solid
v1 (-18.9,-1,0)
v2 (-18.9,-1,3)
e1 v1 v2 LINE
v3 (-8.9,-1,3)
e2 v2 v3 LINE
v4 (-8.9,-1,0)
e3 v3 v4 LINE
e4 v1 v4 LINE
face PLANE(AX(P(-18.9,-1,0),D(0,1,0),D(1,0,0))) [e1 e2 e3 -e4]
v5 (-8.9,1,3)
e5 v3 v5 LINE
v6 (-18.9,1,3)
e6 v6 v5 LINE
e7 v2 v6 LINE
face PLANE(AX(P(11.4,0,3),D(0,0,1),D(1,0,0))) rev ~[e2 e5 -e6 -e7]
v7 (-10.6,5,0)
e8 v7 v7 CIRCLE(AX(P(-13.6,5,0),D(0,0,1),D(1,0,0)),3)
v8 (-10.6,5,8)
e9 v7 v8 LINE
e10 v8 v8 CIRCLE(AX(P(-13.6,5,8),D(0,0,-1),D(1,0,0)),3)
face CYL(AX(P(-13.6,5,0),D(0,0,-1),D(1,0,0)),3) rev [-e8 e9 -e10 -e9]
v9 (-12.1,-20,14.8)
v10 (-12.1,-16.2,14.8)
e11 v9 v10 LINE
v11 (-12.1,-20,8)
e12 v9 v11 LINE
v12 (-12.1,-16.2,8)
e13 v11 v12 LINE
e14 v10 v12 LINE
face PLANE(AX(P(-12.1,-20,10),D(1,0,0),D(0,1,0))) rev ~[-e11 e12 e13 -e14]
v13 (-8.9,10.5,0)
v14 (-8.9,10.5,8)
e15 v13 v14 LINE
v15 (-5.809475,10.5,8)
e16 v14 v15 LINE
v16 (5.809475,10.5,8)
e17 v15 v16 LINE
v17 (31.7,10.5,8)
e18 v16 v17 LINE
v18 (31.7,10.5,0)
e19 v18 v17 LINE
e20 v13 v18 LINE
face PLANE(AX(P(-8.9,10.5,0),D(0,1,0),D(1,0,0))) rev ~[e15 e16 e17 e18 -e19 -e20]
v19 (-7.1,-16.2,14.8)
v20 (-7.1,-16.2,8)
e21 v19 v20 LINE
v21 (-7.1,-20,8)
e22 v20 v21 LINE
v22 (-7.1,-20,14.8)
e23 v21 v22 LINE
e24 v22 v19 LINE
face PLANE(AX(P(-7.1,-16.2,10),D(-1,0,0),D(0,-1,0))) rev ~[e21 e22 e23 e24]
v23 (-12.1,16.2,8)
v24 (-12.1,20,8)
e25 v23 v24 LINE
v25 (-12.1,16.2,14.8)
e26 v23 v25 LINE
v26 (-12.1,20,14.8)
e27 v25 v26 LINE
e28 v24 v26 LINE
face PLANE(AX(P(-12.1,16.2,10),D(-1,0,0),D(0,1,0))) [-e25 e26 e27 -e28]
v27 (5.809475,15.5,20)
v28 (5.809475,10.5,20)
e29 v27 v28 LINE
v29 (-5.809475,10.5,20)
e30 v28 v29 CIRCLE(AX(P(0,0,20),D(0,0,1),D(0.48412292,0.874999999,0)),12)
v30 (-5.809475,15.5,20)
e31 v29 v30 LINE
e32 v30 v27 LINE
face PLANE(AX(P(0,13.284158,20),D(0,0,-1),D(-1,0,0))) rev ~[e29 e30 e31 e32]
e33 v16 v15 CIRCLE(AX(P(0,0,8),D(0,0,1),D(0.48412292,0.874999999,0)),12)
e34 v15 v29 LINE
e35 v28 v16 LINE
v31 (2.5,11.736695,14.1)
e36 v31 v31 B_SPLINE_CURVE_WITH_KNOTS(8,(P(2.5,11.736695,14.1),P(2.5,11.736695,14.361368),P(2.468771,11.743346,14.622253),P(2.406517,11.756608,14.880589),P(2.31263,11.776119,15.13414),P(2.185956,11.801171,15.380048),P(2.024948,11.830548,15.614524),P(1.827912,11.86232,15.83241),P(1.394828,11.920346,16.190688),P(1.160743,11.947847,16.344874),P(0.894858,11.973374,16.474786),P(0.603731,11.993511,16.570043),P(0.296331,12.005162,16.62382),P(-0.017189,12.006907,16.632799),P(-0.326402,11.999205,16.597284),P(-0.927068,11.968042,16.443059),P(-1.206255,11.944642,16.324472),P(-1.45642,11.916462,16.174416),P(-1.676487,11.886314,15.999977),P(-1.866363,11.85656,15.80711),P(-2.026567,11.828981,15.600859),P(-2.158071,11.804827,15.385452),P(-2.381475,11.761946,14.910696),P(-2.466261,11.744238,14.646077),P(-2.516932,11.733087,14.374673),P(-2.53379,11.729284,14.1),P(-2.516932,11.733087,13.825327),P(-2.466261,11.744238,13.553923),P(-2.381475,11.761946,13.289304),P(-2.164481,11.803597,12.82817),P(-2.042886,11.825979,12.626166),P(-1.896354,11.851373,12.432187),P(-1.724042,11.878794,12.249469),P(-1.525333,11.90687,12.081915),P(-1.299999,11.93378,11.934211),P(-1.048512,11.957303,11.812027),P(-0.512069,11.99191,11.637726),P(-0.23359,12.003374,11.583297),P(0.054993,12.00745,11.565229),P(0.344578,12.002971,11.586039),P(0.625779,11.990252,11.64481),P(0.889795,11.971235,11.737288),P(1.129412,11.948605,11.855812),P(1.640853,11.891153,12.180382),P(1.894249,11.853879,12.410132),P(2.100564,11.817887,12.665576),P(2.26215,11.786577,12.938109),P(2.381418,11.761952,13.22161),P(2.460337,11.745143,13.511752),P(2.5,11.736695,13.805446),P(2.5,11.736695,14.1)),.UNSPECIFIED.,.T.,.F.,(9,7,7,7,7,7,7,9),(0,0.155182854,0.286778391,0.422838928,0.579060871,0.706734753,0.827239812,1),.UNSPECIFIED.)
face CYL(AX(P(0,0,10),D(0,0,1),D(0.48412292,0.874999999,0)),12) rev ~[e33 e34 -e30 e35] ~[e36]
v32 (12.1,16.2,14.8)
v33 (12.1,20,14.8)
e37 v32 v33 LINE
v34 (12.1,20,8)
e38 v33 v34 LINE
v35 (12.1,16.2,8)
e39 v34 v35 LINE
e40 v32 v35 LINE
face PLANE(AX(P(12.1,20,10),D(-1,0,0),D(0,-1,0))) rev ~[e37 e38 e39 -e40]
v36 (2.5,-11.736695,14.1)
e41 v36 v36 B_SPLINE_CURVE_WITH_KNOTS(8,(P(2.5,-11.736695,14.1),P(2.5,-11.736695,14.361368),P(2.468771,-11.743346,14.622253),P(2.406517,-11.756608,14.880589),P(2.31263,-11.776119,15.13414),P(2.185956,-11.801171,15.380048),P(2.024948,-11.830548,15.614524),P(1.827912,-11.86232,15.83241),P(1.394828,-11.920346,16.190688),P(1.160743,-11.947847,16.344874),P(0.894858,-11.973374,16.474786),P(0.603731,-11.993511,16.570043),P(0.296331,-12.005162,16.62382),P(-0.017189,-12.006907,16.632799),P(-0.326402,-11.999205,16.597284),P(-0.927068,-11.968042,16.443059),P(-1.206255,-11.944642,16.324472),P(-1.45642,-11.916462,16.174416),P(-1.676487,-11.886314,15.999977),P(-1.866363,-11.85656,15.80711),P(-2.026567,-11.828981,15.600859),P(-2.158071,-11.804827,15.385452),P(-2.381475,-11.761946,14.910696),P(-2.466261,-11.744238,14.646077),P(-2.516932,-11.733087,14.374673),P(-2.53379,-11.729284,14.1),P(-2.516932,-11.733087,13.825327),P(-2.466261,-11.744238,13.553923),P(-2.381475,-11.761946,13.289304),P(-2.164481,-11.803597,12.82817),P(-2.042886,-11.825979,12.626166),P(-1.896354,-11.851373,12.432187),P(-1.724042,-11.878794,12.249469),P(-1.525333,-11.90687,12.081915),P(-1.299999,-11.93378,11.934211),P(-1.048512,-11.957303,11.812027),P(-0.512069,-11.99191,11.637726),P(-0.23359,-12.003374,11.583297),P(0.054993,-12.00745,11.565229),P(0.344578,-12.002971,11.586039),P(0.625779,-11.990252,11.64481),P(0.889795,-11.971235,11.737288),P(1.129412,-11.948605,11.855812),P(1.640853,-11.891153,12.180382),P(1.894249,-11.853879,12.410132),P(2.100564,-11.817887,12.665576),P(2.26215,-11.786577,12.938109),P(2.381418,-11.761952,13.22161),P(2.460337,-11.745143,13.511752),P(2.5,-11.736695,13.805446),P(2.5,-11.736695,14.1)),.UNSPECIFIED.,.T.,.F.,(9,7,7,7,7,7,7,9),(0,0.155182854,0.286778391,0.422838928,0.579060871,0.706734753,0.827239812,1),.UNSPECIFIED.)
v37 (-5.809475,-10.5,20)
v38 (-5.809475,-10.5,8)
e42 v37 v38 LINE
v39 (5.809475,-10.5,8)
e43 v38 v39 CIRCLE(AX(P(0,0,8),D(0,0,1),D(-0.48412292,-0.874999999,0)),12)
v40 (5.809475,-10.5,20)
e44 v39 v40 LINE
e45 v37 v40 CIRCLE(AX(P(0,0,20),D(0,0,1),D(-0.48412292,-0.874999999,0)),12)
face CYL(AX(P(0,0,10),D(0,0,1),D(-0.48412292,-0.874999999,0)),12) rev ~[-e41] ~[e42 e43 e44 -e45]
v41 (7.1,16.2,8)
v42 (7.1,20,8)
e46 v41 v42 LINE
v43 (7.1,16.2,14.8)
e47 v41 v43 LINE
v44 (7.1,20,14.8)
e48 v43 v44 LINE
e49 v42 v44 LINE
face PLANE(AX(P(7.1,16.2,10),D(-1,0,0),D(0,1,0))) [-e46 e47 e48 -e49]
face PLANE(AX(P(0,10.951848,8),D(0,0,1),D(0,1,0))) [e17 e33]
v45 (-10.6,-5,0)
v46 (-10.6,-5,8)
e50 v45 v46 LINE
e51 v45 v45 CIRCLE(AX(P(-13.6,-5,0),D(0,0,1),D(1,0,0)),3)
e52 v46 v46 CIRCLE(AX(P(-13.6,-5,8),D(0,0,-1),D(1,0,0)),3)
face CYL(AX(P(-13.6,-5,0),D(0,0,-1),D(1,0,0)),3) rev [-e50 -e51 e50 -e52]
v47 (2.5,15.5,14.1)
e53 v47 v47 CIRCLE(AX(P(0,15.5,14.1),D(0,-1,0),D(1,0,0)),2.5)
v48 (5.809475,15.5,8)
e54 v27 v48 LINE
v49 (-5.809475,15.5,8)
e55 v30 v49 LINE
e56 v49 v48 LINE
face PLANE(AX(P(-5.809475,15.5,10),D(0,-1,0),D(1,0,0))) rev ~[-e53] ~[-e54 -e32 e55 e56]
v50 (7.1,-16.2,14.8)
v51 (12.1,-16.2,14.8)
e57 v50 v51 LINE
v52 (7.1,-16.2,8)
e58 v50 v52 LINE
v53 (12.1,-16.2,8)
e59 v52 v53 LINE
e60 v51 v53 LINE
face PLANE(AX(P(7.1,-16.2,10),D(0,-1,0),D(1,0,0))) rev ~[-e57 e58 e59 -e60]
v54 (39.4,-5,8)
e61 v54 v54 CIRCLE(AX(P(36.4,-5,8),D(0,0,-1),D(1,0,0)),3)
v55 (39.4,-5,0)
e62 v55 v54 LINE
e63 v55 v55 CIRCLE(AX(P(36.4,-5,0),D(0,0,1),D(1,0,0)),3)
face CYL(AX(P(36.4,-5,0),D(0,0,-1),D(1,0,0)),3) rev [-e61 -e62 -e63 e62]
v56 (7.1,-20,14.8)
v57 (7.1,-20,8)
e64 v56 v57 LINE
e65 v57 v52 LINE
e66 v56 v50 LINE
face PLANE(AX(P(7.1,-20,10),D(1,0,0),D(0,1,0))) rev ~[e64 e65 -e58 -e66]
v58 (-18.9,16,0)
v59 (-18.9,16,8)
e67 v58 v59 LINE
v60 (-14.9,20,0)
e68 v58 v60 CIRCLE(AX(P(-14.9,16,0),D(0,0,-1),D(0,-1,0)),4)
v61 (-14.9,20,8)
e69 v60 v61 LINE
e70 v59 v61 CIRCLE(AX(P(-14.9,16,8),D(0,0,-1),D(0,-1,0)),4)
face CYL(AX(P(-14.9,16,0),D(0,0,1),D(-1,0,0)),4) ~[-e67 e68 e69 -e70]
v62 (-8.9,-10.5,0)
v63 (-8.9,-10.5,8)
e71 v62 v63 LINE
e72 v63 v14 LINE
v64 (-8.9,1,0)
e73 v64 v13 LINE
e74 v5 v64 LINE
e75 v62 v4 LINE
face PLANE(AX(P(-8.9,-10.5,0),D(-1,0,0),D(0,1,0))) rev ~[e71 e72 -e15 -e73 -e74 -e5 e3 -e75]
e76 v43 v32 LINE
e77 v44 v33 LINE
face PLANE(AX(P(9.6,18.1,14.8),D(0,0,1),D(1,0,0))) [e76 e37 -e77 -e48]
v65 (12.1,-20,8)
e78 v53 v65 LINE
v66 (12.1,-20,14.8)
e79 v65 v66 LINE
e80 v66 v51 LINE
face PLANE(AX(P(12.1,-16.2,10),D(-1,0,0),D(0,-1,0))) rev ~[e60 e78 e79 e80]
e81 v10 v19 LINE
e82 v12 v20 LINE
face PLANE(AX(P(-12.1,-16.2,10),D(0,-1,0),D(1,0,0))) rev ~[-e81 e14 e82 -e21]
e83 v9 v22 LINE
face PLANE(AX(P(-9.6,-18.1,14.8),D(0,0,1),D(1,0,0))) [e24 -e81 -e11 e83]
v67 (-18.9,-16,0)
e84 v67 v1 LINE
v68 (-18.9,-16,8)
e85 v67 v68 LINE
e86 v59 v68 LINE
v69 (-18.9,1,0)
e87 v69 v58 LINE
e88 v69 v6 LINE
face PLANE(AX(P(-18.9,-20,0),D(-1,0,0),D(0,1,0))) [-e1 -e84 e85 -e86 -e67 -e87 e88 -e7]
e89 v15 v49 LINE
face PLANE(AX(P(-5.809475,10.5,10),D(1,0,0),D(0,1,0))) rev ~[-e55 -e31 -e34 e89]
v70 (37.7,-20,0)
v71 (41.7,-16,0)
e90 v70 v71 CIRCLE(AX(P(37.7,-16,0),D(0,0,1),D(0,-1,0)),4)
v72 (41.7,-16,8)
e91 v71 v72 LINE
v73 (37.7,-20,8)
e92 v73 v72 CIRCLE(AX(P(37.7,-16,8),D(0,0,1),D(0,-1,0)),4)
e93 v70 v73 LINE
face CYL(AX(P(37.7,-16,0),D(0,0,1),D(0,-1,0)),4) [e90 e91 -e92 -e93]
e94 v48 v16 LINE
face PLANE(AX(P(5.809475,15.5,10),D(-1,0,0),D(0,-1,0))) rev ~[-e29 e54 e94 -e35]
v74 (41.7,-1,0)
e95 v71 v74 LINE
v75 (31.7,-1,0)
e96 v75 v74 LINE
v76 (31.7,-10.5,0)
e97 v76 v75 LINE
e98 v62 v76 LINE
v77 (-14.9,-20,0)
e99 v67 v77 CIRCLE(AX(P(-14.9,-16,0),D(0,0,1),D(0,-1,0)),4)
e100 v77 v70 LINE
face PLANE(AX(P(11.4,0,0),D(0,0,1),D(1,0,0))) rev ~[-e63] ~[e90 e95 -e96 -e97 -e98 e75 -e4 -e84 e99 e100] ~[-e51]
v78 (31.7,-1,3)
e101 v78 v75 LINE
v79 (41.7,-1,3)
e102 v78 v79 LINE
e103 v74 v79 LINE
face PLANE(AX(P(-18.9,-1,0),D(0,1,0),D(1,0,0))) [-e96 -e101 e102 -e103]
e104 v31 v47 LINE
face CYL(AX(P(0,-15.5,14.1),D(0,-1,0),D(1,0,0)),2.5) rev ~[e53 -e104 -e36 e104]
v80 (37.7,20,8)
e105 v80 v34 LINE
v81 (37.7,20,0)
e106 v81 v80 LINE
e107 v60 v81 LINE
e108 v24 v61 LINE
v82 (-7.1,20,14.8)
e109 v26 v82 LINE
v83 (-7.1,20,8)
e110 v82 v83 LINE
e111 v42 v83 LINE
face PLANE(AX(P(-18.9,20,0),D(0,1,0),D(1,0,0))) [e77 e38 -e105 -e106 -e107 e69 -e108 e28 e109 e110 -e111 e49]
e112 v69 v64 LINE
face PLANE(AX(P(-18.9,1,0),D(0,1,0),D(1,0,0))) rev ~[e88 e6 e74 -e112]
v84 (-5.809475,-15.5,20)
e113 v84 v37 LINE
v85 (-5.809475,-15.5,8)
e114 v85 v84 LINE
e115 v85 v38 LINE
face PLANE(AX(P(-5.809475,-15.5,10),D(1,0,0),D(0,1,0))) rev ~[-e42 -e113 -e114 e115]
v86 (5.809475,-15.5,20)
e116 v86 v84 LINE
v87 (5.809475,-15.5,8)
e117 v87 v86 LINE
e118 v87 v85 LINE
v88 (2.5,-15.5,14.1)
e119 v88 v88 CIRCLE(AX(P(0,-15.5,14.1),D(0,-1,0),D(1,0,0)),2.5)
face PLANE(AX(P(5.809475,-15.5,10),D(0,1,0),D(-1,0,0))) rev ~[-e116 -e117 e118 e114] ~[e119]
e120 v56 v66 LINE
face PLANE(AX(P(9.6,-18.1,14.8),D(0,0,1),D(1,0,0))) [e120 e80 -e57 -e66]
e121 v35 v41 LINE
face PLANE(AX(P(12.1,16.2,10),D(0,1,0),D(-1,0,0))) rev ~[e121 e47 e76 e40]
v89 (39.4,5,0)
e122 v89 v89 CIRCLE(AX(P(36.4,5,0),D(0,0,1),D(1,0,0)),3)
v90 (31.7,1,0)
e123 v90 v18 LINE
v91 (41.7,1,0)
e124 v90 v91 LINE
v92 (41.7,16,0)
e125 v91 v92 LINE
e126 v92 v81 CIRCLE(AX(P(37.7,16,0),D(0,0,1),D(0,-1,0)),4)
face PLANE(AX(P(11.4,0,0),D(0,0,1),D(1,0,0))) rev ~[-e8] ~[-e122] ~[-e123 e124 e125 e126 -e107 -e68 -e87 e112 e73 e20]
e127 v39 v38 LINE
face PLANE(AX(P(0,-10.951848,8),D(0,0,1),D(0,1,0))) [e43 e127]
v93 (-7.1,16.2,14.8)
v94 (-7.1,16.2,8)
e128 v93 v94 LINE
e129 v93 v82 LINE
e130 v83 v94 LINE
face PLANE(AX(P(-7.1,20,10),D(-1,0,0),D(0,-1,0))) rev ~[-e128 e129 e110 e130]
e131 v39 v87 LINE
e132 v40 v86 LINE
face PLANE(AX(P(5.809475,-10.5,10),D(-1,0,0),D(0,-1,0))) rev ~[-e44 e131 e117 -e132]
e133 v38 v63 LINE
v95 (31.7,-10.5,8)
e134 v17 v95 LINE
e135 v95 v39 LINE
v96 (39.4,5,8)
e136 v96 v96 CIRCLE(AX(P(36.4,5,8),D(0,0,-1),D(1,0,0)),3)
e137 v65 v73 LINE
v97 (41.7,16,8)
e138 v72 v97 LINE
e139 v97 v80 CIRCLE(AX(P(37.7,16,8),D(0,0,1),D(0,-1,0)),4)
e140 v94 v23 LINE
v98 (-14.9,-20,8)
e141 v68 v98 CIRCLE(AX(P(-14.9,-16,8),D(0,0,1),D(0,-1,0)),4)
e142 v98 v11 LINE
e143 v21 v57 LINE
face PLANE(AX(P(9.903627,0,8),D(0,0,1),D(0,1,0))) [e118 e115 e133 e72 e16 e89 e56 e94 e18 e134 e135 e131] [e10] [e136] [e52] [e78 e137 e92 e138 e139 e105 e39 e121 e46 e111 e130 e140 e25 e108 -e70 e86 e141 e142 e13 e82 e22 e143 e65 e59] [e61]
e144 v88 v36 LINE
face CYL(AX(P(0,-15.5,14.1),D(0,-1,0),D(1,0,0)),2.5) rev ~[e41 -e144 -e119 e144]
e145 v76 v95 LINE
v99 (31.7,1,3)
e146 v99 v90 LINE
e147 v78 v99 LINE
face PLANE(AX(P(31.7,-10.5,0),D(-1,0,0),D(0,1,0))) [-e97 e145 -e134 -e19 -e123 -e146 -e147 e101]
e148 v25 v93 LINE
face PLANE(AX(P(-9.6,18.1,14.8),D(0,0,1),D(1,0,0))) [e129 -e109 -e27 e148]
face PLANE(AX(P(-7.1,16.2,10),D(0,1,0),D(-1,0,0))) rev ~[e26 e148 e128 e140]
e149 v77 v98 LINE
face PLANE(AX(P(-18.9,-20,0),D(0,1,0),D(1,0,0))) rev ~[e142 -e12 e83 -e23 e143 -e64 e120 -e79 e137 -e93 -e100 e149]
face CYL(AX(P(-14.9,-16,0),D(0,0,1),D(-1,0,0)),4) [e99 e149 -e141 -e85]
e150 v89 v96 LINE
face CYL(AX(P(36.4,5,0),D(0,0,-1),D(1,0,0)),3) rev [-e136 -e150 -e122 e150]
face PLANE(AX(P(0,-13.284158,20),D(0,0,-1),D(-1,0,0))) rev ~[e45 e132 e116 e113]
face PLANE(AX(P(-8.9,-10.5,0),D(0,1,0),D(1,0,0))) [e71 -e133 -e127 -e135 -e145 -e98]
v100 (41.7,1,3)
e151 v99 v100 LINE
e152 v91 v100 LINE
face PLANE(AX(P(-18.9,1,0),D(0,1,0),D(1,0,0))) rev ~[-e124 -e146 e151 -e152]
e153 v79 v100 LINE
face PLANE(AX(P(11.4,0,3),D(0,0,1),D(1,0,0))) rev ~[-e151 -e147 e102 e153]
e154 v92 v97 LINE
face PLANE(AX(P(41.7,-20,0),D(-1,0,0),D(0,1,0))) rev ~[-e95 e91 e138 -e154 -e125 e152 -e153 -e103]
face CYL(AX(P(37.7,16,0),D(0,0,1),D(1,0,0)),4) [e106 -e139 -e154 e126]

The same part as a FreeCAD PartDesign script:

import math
import FreeCAD as App
import Part
import Sketcher
Q = App.Units.Quantity


def edges_at(feature, points):
    """Names of the edges that pass closest to the given points."""
    edges = feature.Shape.Edges
    near = lambda p: min(range(len(edges)), key=lambda i: edges[i].distToShape(Part.Vertex(*p))[0])
    return sorted({f"Edge{near(p) + 1}" for p in points})

doc = App.newDocument("Part")
body = doc.addObject("PartDesign::Body", "Body")

# Sketch on XY plane
sketch1 = doc.addObject("Sketcher::SketchObject", "Sketch")
body.addObject(sketch1)
sketch1.AttachmentSupport = (doc.XY_Plane, [""])
sketch1.MapMode = "FlatFace"
sketch1.addGeometry([
    Part.LineSegment(App.Vector(-18.9, 20, 0), App.Vector(-18.9, -20, 0)),  # 0
    Part.LineSegment(App.Vector(-18.9, -20, 0), App.Vector(41.7, -20, 0)),  # 1
    Part.LineSegment(App.Vector(41.7, -20, 0), App.Vector(41.7, 20, 0)),  # 2
    Part.LineSegment(App.Vector(41.7, 20, 0), App.Vector(-18.9, 20, 0)),  # 3
    Part.Circle(App.Vector(-13.6, -5, 0), App.Vector(0, 0, 1), 3),  # 4
    Part.Circle(App.Vector(36.4, -5, 0), App.Vector(0, 0, 1), 3),  # 5
    Part.Circle(App.Vector(-13.6, 5, 0), App.Vector(0, 0, 1), 3),  # 6
    Part.LineSegment(App.Vector(31.7, -10.5, 0), App.Vector(-8.9, -10.5, 0)),  # 7
    Part.LineSegment(App.Vector(-8.9, -10.5, 0), App.Vector(-8.9, 10.5, 0)),  # 8
    Part.LineSegment(App.Vector(-8.9, 10.5, 0), App.Vector(31.7, 10.5, 0)),  # 9
    Part.LineSegment(App.Vector(31.7, 10.5, 0), App.Vector(31.7, -10.5, 0)),  # 10
    Part.Circle(App.Vector(36.4, 5, 0), App.Vector(0, 0, 1), 3),  # 11
], False)
sketch1.addConstraint([
    Sketcher.Constraint("Coincident", 0, 2, 1, 1),
    Sketcher.Constraint("Coincident", 1, 2, 2, 1),
    Sketcher.Constraint("Coincident", 2, 2, 3, 1),
    Sketcher.Constraint("Coincident", 3, 2, 0, 1),
    Sketcher.Constraint("Coincident", 7, 2, 8, 1),
    Sketcher.Constraint("Coincident", 8, 2, 9, 1),
    Sketcher.Constraint("Coincident", 9, 2, 10, 1),
    Sketcher.Constraint("Coincident", 10, 2, 7, 1),
    Sketcher.Constraint("Vertical", 0),
    Sketcher.Constraint("Horizontal", 1),
    Sketcher.Constraint("Vertical", 2),
    Sketcher.Constraint("Horizontal", 3),
    Sketcher.Constraint("Horizontal", 7),
    Sketcher.Constraint("Vertical", 8),
    Sketcher.Constraint("Horizontal", 9),
    Sketcher.Constraint("Vertical", 10),
    Sketcher.Constraint("Equal", 4, 5),
    Sketcher.Constraint("Equal", 5, 6),
    Sketcher.Constraint("Equal", 6, 11),
    Sketcher.Constraint("Symmetric", 4, 3, 6, 3, -1),
    Sketcher.Constraint("Symmetric", 5, 3, 11, 3, -1),
    Sketcher.Constraint("Horizontal", 4, 3, 5, 3),
    Sketcher.Constraint("Diameter", 4, Q("6 mm")),
    Sketcher.Constraint("DistanceY", 0, 2, 0, 1, Q("40 mm")),
    Sketcher.Constraint("DistanceY", 8, 1, 8, 2, Q("21 mm")),
    Sketcher.Constraint("DistanceX", 1, 1, 1, 2, Q("60.6 mm")),
    Sketcher.Constraint("DistanceX", 7, 2, 7, 1, Q("40.6 mm")),
    Sketcher.Constraint("DistanceY", 4, 3, -1, 1, Q("5 mm")),
    Sketcher.Constraint("DistanceY", 0, 2, -1, 1, Q("20 mm")),
    Sketcher.Constraint("DistanceX", 4, 3, 5, 3, Q("50 mm")),
    Sketcher.Constraint("DistanceX", 0, 2, 7, 2, Q("10 mm")),
    Sketcher.Constraint("DistanceX", 4, 3, -1, 1, Q("13.6 mm")),
    Sketcher.Constraint("DistanceX", 0, 2, -1, 1, Q("18.9 mm")),
    Sketcher.Constraint("DistanceY", 7, 2, -1, 1, Q("10.5 mm")),
])
pad1 = doc.addObject("PartDesign::Pad", "Pad")
body.addObject(pad1)
pad1.Profile = sketch1
pad1.Length = 10

# Sketch on XY plane
sketch2 = doc.addObject("Sketcher::SketchObject", "Sketch001")
body.addObject(sketch2)
sketch2.AttachmentSupport = (doc.XY_Plane, [""])
sketch2.MapMode = "FlatFace"
sketch2.addGeometry([
    Part.LineSegment(App.Vector(-18.9, 1, 0), App.Vector(-18.9, -1, 0)),
    Part.LineSegment(App.Vector(-18.9, -1, 0), App.Vector(41.7, -1, 0)),
    Part.LineSegment(App.Vector(41.7, -1, 0), App.Vector(41.7, 1, 0)),
    Part.LineSegment(App.Vector(41.7, 1, 0), App.Vector(-18.9, 1, 0)),
], False)
sketch2.addConstraint([
    Sketcher.Constraint("Coincident", 0, 2, 1, 1),
    Sketcher.Constraint("Coincident", 1, 2, 2, 1),
    Sketcher.Constraint("Coincident", 2, 2, 3, 1),
    Sketcher.Constraint("Coincident", 3, 2, 0, 1),
    Sketcher.Constraint("Vertical", 0),
    Sketcher.Constraint("Horizontal", 1),
    Sketcher.Constraint("Vertical", 2),
    Sketcher.Constraint("Horizontal", 3),
    Sketcher.Constraint("DistanceY", 0, 2, 0, 1, Q("2 mm")),
    Sketcher.Constraint("DistanceX", 1, 1, 1, 2, Q("60.6 mm")),
    Sketcher.Constraint("DistanceY", 0, 2, -1, 1, Q("1 mm")),
    Sketcher.Constraint("DistanceX", 0, 2, -1, 1, Q("18.9 mm")),
])
pocket1 = doc.addObject("PartDesign::Pocket", "Pocket")
body.addObject(pocket1)
pocket1.Profile = sketch2
pocket1.Length = 3
pocket1.Reversed = True

# Sketch on XY plane
sketch3 = doc.addObject("Sketcher::SketchObject", "Sketch002")
body.addObject(sketch3)
sketch3.AttachmentSupport = (doc.XY_Plane, [""])
sketch3.MapMode = "FlatFace"
sketch3.AttachmentOffset = App.Placement(App.Vector(0, 0, 10), App.Rotation())
sketch3.addGeometry([
    Part.LineSegment(App.Vector(5.809475, 15.5, 0), App.Vector(-5.809475, 15.5, 0)),  # 0
    Part.LineSegment(App.Vector(-5.809475, 15.5, 0), App.Vector(-5.809475, 10.5, 0)),  # 1
    Part.ArcOfCircle(Part.Circle(App.Vector(0, 0, 0), App.Vector(0, 0, 1), 12), math.radians(61.044976), math.radians(118.955024)),  # 2
    Part.LineSegment(App.Vector(5.809475, 10.5, 0), App.Vector(5.809475, 15.5, 0)),  # 3
    Part.LineSegment(App.Vector(5.809475, -15.5, 0), App.Vector(5.809475, -10.5, 0)),  # 4
    Part.ArcOfCircle(Part.Circle(App.Vector(0, 0, 0), App.Vector(0, 0, 1), 12), math.radians(-118.955024), math.radians(-61.044976)),  # 5
    Part.LineSegment(App.Vector(-5.809475, -10.5, 0), App.Vector(-5.809475, -15.5, 0)),  # 6
    Part.LineSegment(App.Vector(-5.809475, -15.5, 0), App.Vector(5.809475, -15.5, 0)),  # 7
], False)
sketch3.addConstraint([
    Sketcher.Constraint("Coincident", 0, 2, 1, 1),
    Sketcher.Constraint("Coincident", 1, 2, 2, 2),
    Sketcher.Constraint("Coincident", 2, 1, 3, 1),
    Sketcher.Constraint("Coincident", 3, 2, 0, 1),
    Sketcher.Constraint("Coincident", 4, 2, 5, 2),
    Sketcher.Constraint("Coincident", 5, 1, 6, 1),
    Sketcher.Constraint("Coincident", 6, 2, 7, 1),
    Sketcher.Constraint("Coincident", 7, 2, 4, 1),
    Sketcher.Constraint("Horizontal", 0),
    Sketcher.Constraint("Vertical", 1),
    Sketcher.Constraint("Vertical", 3),
    Sketcher.Constraint("Vertical", 4),
    Sketcher.Constraint("Vertical", 6),
    Sketcher.Constraint("Horizontal", 7),
    Sketcher.Constraint("Coincident", 2, 3, -1, 1),
    Sketcher.Constraint("Coincident", 5, 3, -1, 1),
    Sketcher.Constraint("Equal", 2, 5),
    Sketcher.Constraint("Symmetric", 3, 2, 6, 2, -1, 1),
    Sketcher.Constraint("Horizontal", 1, 2, 2, 1),
    Sketcher.Constraint("Horizontal", 4, 2, 5, 1),
    Sketcher.Constraint("Radius", 2, Q("12 mm")),
    Sketcher.Constraint("DistanceY", 1, 2, 1, 1, Q("5 mm")),
    Sketcher.Constraint("DistanceY", 4, 2, 2, 1, Q("21 mm")),
])
pad2 = doc.addObject("PartDesign::Pad", "Pad001")
body.addObject(pad2)
pad2.Profile = sketch3
pad2.Length = 10

# Sketch on XZ plane
sketch4 = doc.addObject("Sketcher::SketchObject", "Sketch003")
body.addObject(sketch4)
sketch4.AttachmentSupport = (doc.XZ_Plane, [""])
sketch4.MapMode = "FlatFace"
sketch4.AttachmentOffset = App.Placement(App.Vector(0, 0, 15.5), App.Rotation())
sketch4.addGeometry(Part.Circle(App.Vector(0, 14.1, 0), App.Vector(0, 0, 1), 2.5), False)
sketch4.addConstraint([
    Sketcher.Constraint("PointOnObject", 0, 3, -2),
    Sketcher.Constraint("Diameter", 0, Q("5 mm")),
    Sketcher.Constraint("DistanceY", -1, 1, 0, 3, Q("14.1 mm")),
])
pocket2 = doc.addObject("PartDesign::Pocket", "Pocket001")
body.addObject(pocket2)
pocket2.Profile = sketch4
pocket2.Type = "ThroughAll"

# Sketch on XY plane
sketch5 = doc.addObject("Sketcher::SketchObject", "Sketch004")
body.addObject(sketch5)
sketch5.AttachmentSupport = (doc.XY_Plane, [""])
sketch5.MapMode = "FlatFace"
sketch5.AttachmentOffset = App.Placement(App.Vector(0, 0, 10), App.Rotation())
sketch5.addGeometry([
    Part.LineSegment(App.Vector(7.1, 20, 0), App.Vector(7.1, 16.2, 0)),  # 0
    Part.LineSegment(App.Vector(7.1, 16.2, 0), App.Vector(12.1, 16.2, 0)),  # 1
    Part.LineSegment(App.Vector(12.1, 16.2, 0), App.Vector(12.1, 20, 0)),  # 2
    Part.LineSegment(App.Vector(12.1, 20, 0), App.Vector(7.1, 20, 0)),  # 3
    Part.LineSegment(App.Vector(-12.1, 20, 0), App.Vector(-12.1, 16.2, 0)),  # 4
    Part.LineSegment(App.Vector(-12.1, 16.2, 0), App.Vector(-7.1, 16.2, 0)),  # 5
    Part.LineSegment(App.Vector(-7.1, 16.2, 0), App.Vector(-7.1, 20, 0)),  # 6
    Part.LineSegment(App.Vector(-7.1, 20, 0), App.Vector(-12.1, 20, 0)),  # 7
    Part.LineSegment(App.Vector(-12.1, -16.2, 0), App.Vector(-12.1, -20, 0)),  # 8
    Part.LineSegment(App.Vector(-12.1, -20, 0), App.Vector(-7.1, -20, 0)),  # 9
    Part.LineSegment(App.Vector(-7.1, -20, 0), App.Vector(-7.1, -16.2, 0)),  # 10
    Part.LineSegment(App.Vector(-7.1, -16.2, 0), App.Vector(-12.1, -16.2, 0)),  # 11
    Part.LineSegment(App.Vector(7.1, -16.2, 0), App.Vector(7.1, -20, 0)),  # 12
    Part.LineSegment(App.Vector(7.1, -20, 0), App.Vector(12.1, -20, 0)),  # 13
    Part.LineSegment(App.Vector(12.1, -20, 0), App.Vector(12.1, -16.2, 0)),  # 14
    Part.LineSegment(App.Vector(12.1, -16.2, 0), App.Vector(7.1, -16.2, 0)),  # 15
], False)
sketch5.addConstraint([
    Sketcher.Constraint("Coincident", 0, 2, 1, 1),
    Sketcher.Constraint("Coincident", 1, 2, 2, 1),
    Sketcher.Constraint("Coincident", 2, 2, 3, 1),
    Sketcher.Constraint("Coincident", 3, 2, 0, 1),
    Sketcher.Constraint("Coincident", 4, 2, 5, 1),
    Sketcher.Constraint("Coincident", 5, 2, 6, 1),
    Sketcher.Constraint("Coincident", 6, 2, 7, 1),
    Sketcher.Constraint("Coincident", 7, 2, 4, 1),
    Sketcher.Constraint("Coincident", 8, 2, 9, 1),
    Sketcher.Constraint("Coincident", 9, 2, 10, 1),
    Sketcher.Constraint("Coincident", 10, 2, 11, 1),
    Sketcher.Constraint("Coincident", 11, 2, 8, 1),
    Sketcher.Constraint("Coincident", 12, 2, 13, 1),
    Sketcher.Constraint("Coincident", 13, 2, 14, 1),
    Sketcher.Constraint("Coincident", 14, 2, 15, 1),
    Sketcher.Constraint("Coincident", 15, 2, 12, 1),
    Sketcher.Constraint("Vertical", 0),
    Sketcher.Constraint("Horizontal", 1),
    Sketcher.Constraint("Vertical", 2),
    Sketcher.Constraint("Horizontal", 3),
    Sketcher.Constraint("Vertical", 4),
    Sketcher.Constraint("Horizontal", 5),
    Sketcher.Constraint("Vertical", 6),
    Sketcher.Constraint("Horizontal", 7),
    Sketcher.Constraint("Vertical", 8),
    Sketcher.Constraint("Horizontal", 9),
    Sketcher.Constraint("Vertical", 10),
    Sketcher.Constraint("Horizontal", 11),
    Sketcher.Constraint("Vertical", 12),
    Sketcher.Constraint("Horizontal", 13),
    Sketcher.Constraint("Vertical", 14),
    Sketcher.Constraint("Horizontal", 15),
    Sketcher.Constraint("Symmetric", 2, 2, 8, 2, -1, 1),
    Sketcher.Constraint("Symmetric", 0, 2, 10, 2, -1, 1),
    Sketcher.Constraint("Symmetric", 6, 2, 12, 2, -1, 1),
    Sketcher.Constraint("Symmetric", 4, 2, 14, 2, -1, 1),
    Sketcher.Constraint("Symmetric", 1, 2, 4, 2, -2),
    Sketcher.Constraint("Symmetric", 3, 2, 6, 2, -2),
    Sketcher.Constraint("DistanceX", 1, 1, 1, 2, Q("5 mm")),
    Sketcher.Constraint("DistanceY", 0, 2, 0, 1, Q("3.8 mm")),
    Sketcher.Constraint("DistanceY", -1, 1, 2, 2, Q("20 mm")),
    Sketcher.Constraint("DistanceX", -1, 1, 0, 2, Q("7.1 mm")),
])
pad3 = doc.addObject("PartDesign::Pad", "Pad002")
body.addObject(pad3)
pad3.Profile = sketch5
pad3.Length = 4.8

# Sketch on XY plane
sketch6 = doc.addObject("Sketcher::SketchObject", "Sketch005")
body.addObject(sketch6)
sketch6.AttachmentSupport = (doc.XY_Plane, [""])
sketch6.MapMode = "FlatFace"
sketch6.AttachmentOffset = App.Placement(App.Vector(0, 0, 10), App.Rotation())
sketch6.addGeometry([
    Part.LineSegment(App.Vector(-12.1, 20, 0), App.Vector(-18.9, 20, 0)),  # 0
    Part.LineSegment(App.Vector(-18.9, 20, 0), App.Vector(-18.9, -20, 0)),  # 1
    Part.LineSegment(App.Vector(-18.9, -20, 0), App.Vector(-12.1, -20, 0)),  # 2
    Part.LineSegment(App.Vector(-12.1, -20, 0), App.Vector(-12.1, -16.2, 0)),  # 3
    Part.LineSegment(App.Vector(-12.1, -16.2, 0), App.Vector(-7.1, -16.2, 0)),  # 4
    Part.LineSegment(App.Vector(-7.1, -16.2, 0), App.Vector(-7.1, -20, 0)),  # 5
    Part.LineSegment(App.Vector(-7.1, -20, 0), App.Vector(7.1, -20, 0)),  # 6
    Part.LineSegment(App.Vector(7.1, -20, 0), App.Vector(7.1, -16.2, 0)),  # 7
    Part.LineSegment(App.Vector(7.1, -16.2, 0), App.Vector(12.1, -16.2, 0)),  # 8
    Part.LineSegment(App.Vector(12.1, -16.2, 0), App.Vector(12.1, -20, 0)),  # 9
    Part.LineSegment(App.Vector(12.1, -20, 0), App.Vector(41.7, -20, 0)),  # 10
    Part.LineSegment(App.Vector(41.7, -20, 0), App.Vector(41.7, 20, 0)),  # 11
    Part.LineSegment(App.Vector(41.7, 20, 0), App.Vector(12.1, 20, 0)),  # 12
    Part.LineSegment(App.Vector(12.1, 20, 0), App.Vector(12.1, 16.2, 0)),  # 13
    Part.LineSegment(App.Vector(12.1, 16.2, 0), App.Vector(7.1, 16.2, 0)),  # 14
    Part.LineSegment(App.Vector(7.1, 16.2, 0), App.Vector(7.1, 20, 0)),  # 15
    Part.LineSegment(App.Vector(7.1, 20, 0), App.Vector(-7.1, 20, 0)),  # 16
    Part.LineSegment(App.Vector(-7.1, 20, 0), App.Vector(-7.1, 16.2, 0)),  # 17
    Part.LineSegment(App.Vector(-7.1, 16.2, 0), App.Vector(-12.1, 16.2, 0)),  # 18
    Part.LineSegment(App.Vector(-12.1, 16.2, 0), App.Vector(-12.1, 20, 0)),  # 19
    Part.Circle(App.Vector(36.4, -5, 0), App.Vector(0, 0, 1), 3),  # 20
    Part.Circle(App.Vector(36.4, 5, 0), App.Vector(0, 0, 1), 3),  # 21
    Part.LineSegment(App.Vector(-5.809475, -10.5, 0), App.Vector(-8.9, -10.5, 0)),  # 22
    Part.LineSegment(App.Vector(-8.9, -10.5, 0), App.Vector(-8.9, 10.5, 0)),  # 23
    Part.LineSegment(App.Vector(-8.9, 10.5, 0), App.Vector(-5.809475, 10.5, 0)),  # 24
    Part.LineSegment(App.Vector(-5.809475, 10.5, 0), App.Vector(-5.809475, 15.5, 0)),  # 25
    Part.LineSegment(App.Vector(-5.809475, 15.5, 0), App.Vector(5.809475, 15.5, 0)),  # 26
    Part.LineSegment(App.Vector(5.809475, 15.5, 0), App.Vector(5.809475, 10.5, 0)),  # 27
    Part.LineSegment(App.Vector(5.809475, 10.5, 0), App.Vector(31.7, 10.5, 0)),  # 28
    Part.LineSegment(App.Vector(31.7, 10.5, 0), App.Vector(31.7, -10.5, 0)),  # 29
    Part.LineSegment(App.Vector(31.7, -10.5, 0), App.Vector(5.809475, -10.5, 0)),  # 30
    Part.LineSegment(App.Vector(5.809475, -10.5, 0), App.Vector(5.809475, -15.5, 0)),  # 31
    Part.LineSegment(App.Vector(5.809475, -15.5, 0), App.Vector(-5.809475, -15.5, 0)),  # 32
    Part.LineSegment(App.Vector(-5.809475, -15.5, 0), App.Vector(-5.809475, -10.5, 0)),  # 33
    Part.Circle(App.Vector(-13.6, -5, 0), App.Vector(0, 0, 1), 3),  # 34
    Part.Circle(App.Vector(-13.6, 5, 0), App.Vector(0, 0, 1), 3),  # 35
], False)
sketch6.addConstraint([
    Sketcher.Constraint("Coincident", 0, 2, 1, 1),
    Sketcher.Constraint("Coincident", 1, 2, 2, 1),
    Sketcher.Constraint("Coincident", 2, 2, 3, 1),
    Sketcher.Constraint("Coincident", 3, 2, 4, 1),
    Sketcher.Constraint("Coincident", 4, 2, 5, 1),
    Sketcher.Constraint("Coincident", 5, 2, 6, 1),
    Sketcher.Constraint("Coincident", 6, 2, 7, 1),
    Sketcher.Constraint("Coincident", 7, 2, 8, 1),
    Sketcher.Constraint("Coincident", 8, 2, 9, 1),
    Sketcher.Constraint("Coincident", 9, 2, 10, 1),
    Sketcher.Constraint("Coincident", 10, 2, 11, 1),
    Sketcher.Constraint("Coincident", 11, 2, 12, 1),
    Sketcher.Constraint("Coincident", 12, 2, 13, 1),
    Sketcher.Constraint("Coincident", 13, 2, 14, 1),
    Sketcher.Constraint("Coincident", 14, 2, 15, 1),
    Sketcher.Constraint("Coincident", 15, 2, 16, 1),
    Sketcher.Constraint("Coincident", 16, 2, 17, 1),
    Sketcher.Constraint("Coincident", 17, 2, 18, 1),
    Sketcher.Constraint("Coincident", 18, 2, 19, 1),
    Sketcher.Constraint("Coincident", 19, 2, 0, 1),
    Sketcher.Constraint("Coincident", 22, 2, 23, 1),
    Sketcher.Constraint("Coincident", 23, 2, 24, 1),
    Sketcher.Constraint("Coincident", 24, 2, 25, 1),
    Sketcher.Constraint("Coincident", 25, 2, 26, 1),
    Sketcher.Constraint("Coincident", 26, 2, 27, 1),
    Sketcher.Constraint("Coincident", 27, 2, 28, 1),
    Sketcher.Constraint("Coincident", 28, 2, 29, 1),
    Sketcher.Constraint("Coincident", 29, 2, 30, 1),
    Sketcher.Constraint("Coincident", 30, 2, 31, 1),
    Sketcher.Constraint("Coincident", 31, 2, 32, 1),
    Sketcher.Constraint("Coincident", 32, 2, 33, 1),
    Sketcher.Constraint("Coincident", 33, 2, 22, 1),
    Sketcher.Constraint("Horizontal", 0),
    Sketcher.Constraint("Vertical", 1),
    Sketcher.Constraint("Horizontal", 2),
    Sketcher.Constraint("Vertical", 3),
    Sketcher.Constraint("Horizontal", 4),
    Sketcher.Constraint("Vertical", 5),
    Sketcher.Constraint("Horizontal", 6),
    Sketcher.Constraint("Vertical", 7),
    Sketcher.Constraint("Horizontal", 8),
    Sketcher.Constraint("Vertical", 9),
    Sketcher.Constraint("Horizontal", 10),
    Sketcher.Constraint("Vertical", 11),
    Sketcher.Constraint("Horizontal", 12),
    Sketcher.Constraint("Vertical", 13),
    Sketcher.Constraint("Horizontal", 14),
    Sketcher.Constraint("Vertical", 15),
    Sketcher.Constraint("Horizontal", 16),
    Sketcher.Constraint("Vertical", 17),
    Sketcher.Constraint("Horizontal", 18),
    Sketcher.Constraint("Vertical", 19),
    Sketcher.Constraint("Horizontal", 22),
    Sketcher.Constraint("Vertical", 23),
    Sketcher.Constraint("Horizontal", 24),
    Sketcher.Constraint("Vertical", 25),
    Sketcher.Constraint("Horizontal", 26),
    Sketcher.Constraint("Vertical", 27),
    Sketcher.Constraint("Horizontal", 28),
    Sketcher.Constraint("Vertical", 29),
    Sketcher.Constraint("Horizontal", 30),
    Sketcher.Constraint("Vertical", 31),
    Sketcher.Constraint("Horizontal", 32),
    Sketcher.Constraint("Vertical", 33),
    Sketcher.Constraint("Equal", 20, 21),
    Sketcher.Constraint("Equal", 21, 34),
    Sketcher.Constraint("Equal", 34, 35),
    Sketcher.Constraint("Symmetric", 2, 2, 12, 2, -1, 1),
    Sketcher.Constraint("Symmetric", 4, 2, 14, 2, -1, 1),
    Sketcher.Constraint("Symmetric", 6, 2, 16, 2, -1, 1),
    Sketcher.Constraint("Symmetric", 8, 2, 18, 2, -1, 1),
    Sketcher.Constraint("Symmetric", 24, 2, 30, 2, -1, 1),
    Sketcher.Constraint("Symmetric", 26, 2, 32, 2, -1, 1),
    Sketcher.Constraint("Symmetric", 4, 2, 7, 2, -2),
    Sketcher.Constraint("Symmetric", 2, 2, 9, 2, -2),
    Sketcher.Constraint("Symmetric", 24, 2, 27, 2, -2),
    Sketcher.Constraint("Symmetric", 20, 3, 21, 3, -1),
    Sketcher.Constraint("Symmetric", 34, 3, 35, 3, -1),
    Sketcher.Constraint("Horizontal", 20, 3, 34, 3),
    Sketcher.Constraint("Horizontal", 2, 2, 5, 2),
    Sketcher.Constraint("Horizontal", 0, 2, 11, 2),
    Sketcher.Constraint("Horizontal", 22, 2, 29, 2),
    Sketcher.Constraint("Equal", 18, 25),
    Sketcher.Constraint("Diameter", 20, Q("6 mm")),
    Sketcher.Constraint("DistanceX", 4, 1, 4, 2, Q("5 mm")),
    Sketcher.Constraint("DistanceY", 1, 2, 1, 1, Q("40 mm")),
    Sketcher.Constraint("DistanceY", 23, 1, 23, 2, Q("21 mm")),
    Sketcher.Constraint("DistanceX", 0, 2, 0, 1, Q("6.8 mm")),
    Sketcher.Constraint("DistanceX", 6, 1, 6, 2, Q("14.2 mm")),
    Sketcher.Constraint("DistanceX", 10, 1, 10, 2, Q("29.6 mm")),
    Sketcher.Constraint("DistanceY", 3, 1, 3, 2, Q("3.8 mm")),
    Sketcher.Constraint("DistanceY", 20, 3, -1, 1, Q("5 mm")),
    Sketcher.Constraint("DistanceX", 34, 3, 20, 3, Q("50 mm")),
    Sketcher.Constraint("DistanceX", 28, 2, 11, 2, Q("10 mm")),
    Sketcher.Constraint("DistanceX", -1, 1, 20, 3, Q("36.4 mm")),
    Sketcher.Constraint("DistanceX", 22, 2, -1, 1, Q("8.9 mm")),
    Sketcher.Constraint("DistanceX", 26, 1, 26, 2, Q("11.61895 mm")),
])
pocket3 = doc.addObject("PartDesign::Pocket", "Pocket002")
body.addObject(pocket3)
pocket3.Profile = sketch6
pocket3.Length = 2

# Sketch on XY plane
sketch7 = doc.addObject("Sketcher::SketchObject", "Sketch006")
body.addObject(sketch7)
sketch7.AttachmentSupport = (doc.XY_Plane, [""])
sketch7.MapMode = "FlatFace"
sketch7.AttachmentOffset = App.Placement(App.Vector(0, 0, 10), App.Rotation())
sketch7.addGeometry([
    Part.ArcOfCircle(Part.Circle(App.Vector(0, 0, 0), App.Vector(0, 0, 1), 12), math.radians(61.044976), math.radians(118.955024)),
    Part.LineSegment(App.Vector(-5.809475, 10.5, 0), App.Vector(5.809475, 10.5, 0)),
], False)
sketch7.addConstraint([
    Sketcher.Constraint("Coincident", 0, 1, 1, 2),
    Sketcher.Constraint("Coincident", 1, 1, 0, 2),
    Sketcher.Constraint("Horizontal", 1),
    Sketcher.Constraint("Coincident", 0, 3, -1, 1),
    Sketcher.Constraint("Radius", 0, Q("12 mm")),
    Sketcher.Constraint("DistanceY", -1, 1, 0, 1, Q("10.5 mm")),
])
pocket4 = doc.addObject("PartDesign::Pocket", "Pocket003")
body.addObject(pocket4)
pocket4.Profile = sketch7
pocket4.Length = 2

# Sketch on XY plane
sketch8 = doc.addObject("Sketcher::SketchObject", "Sketch007")
body.addObject(sketch8)
sketch8.AttachmentSupport = (doc.XY_Plane, [""])
sketch8.MapMode = "FlatFace"
sketch8.AttachmentOffset = App.Placement(App.Vector(0, 0, 10), App.Rotation())
sketch8.addGeometry([
    Part.LineSegment(App.Vector(5.809475, -10.5, 0), App.Vector(-5.809475, -10.5, 0)),
    Part.ArcOfCircle(Part.Circle(App.Vector(0, 0, 0), App.Vector(0, 0, 1), 12), math.radians(-118.955024), math.radians(-61.044976)),
], False)
sketch8.addConstraint([
    Sketcher.Constraint("Coincident", 0, 1, 1, 2),
    Sketcher.Constraint("Coincident", 1, 1, 0, 2),
    Sketcher.Constraint("Horizontal", 0),
    Sketcher.Constraint("Coincident", 1, 3, -1, 1),
    Sketcher.Constraint("Radius", 1, Q("12 mm")),
    Sketcher.Constraint("DistanceY", 0, 1, -1, 1, Q("10.5 mm")),
])
pocket5 = doc.addObject("PartDesign::Pocket", "Pocket004")
body.addObject(pocket5)
pocket5.Profile = sketch8
pocket5.Length = 2
doc.recompute()

fillet = doc.addObject("PartDesign::Fillet", "Fillet")
body.addObject(fillet)
fillet.Base = (pocket5, edges_at(pocket5, [
    (-18.9, -20, 4),
    (-18.9, 20, 4),
    (41.7, -20, 4),
    (41.7, 20, 4),
]))
fillet.Radius = 4

doc.recompute()
